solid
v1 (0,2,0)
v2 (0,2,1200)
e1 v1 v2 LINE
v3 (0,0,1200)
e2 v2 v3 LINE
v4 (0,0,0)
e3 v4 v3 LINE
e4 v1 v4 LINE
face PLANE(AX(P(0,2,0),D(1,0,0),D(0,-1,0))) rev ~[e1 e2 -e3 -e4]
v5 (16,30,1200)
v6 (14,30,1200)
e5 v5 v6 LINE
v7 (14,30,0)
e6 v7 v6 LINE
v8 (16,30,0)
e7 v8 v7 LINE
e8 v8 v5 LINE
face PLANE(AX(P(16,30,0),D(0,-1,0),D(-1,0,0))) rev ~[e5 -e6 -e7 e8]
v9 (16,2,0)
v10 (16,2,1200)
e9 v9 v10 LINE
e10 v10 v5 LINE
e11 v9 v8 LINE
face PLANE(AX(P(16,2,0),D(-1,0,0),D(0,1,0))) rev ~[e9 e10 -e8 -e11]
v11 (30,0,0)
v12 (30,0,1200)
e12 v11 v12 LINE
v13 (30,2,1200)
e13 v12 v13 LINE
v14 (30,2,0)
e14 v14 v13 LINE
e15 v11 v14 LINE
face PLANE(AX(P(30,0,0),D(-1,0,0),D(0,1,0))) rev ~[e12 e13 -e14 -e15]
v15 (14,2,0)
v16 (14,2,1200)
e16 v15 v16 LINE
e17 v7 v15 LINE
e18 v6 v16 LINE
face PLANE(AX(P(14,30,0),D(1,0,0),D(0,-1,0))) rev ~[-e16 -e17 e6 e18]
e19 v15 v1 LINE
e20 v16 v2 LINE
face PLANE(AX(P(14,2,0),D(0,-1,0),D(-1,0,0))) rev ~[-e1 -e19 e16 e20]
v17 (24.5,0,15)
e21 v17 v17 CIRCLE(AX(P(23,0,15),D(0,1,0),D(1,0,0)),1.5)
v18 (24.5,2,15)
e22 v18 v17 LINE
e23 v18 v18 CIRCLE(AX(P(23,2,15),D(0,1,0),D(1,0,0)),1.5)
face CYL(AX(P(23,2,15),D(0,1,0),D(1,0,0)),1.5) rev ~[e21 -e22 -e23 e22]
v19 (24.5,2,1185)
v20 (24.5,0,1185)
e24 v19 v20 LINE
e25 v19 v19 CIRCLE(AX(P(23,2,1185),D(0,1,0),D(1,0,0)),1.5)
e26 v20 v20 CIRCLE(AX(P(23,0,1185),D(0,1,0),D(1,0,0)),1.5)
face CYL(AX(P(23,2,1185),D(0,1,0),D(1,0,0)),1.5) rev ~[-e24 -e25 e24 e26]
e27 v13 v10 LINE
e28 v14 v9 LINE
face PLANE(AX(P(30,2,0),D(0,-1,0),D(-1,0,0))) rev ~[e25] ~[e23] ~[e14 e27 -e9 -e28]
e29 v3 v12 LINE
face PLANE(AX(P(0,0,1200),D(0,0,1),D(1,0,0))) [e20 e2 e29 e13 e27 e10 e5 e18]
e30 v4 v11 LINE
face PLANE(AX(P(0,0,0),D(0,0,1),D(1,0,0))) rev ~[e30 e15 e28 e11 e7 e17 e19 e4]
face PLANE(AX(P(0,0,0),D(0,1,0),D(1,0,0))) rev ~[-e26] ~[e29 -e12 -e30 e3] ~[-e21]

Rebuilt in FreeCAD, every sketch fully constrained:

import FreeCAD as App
import Part
import Sketcher
Q = App.Units.Quantity

doc = App.newDocument("Part")
params = doc.addObject("Spreadsheet::Sheet", "Params")
for row, (alias, value) in enumerate([
    ("sketch1_width", "30 mm"),
    ("sketch1_width2", "14 mm"),
    ("sketch1_height", "28 mm"),
    ("pad1_length", "1200 mm"),
    ("sketch2_diameter", "3 mm"),
    ("pocket1_length", "2 mm"),
], start=1):
    params.set(f"A{row}", alias)
    params.set(f"B{row}", "=" + value)
    params.setAlias(f"B{row}", alias)

body = doc.addObject("PartDesign::Body", "Body")

sketch1 = body.newObject("Sketcher::SketchObject", "Sketch")
sketch1.AttachmentSupport = (doc.getObject("XY_Plane"), [""])
sketch1.MapMode = "FlatFace"
sketch1.addGeometry([
    Part.LineSegment(App.Vector(0, 2, 0), App.Vector(0, 0, 0)),
    Part.LineSegment(App.Vector(0, 0, 0), App.Vector(30, 0, 0)),
    Part.LineSegment(App.Vector(30, 0, 0), App.Vector(30, 2, 0)),
    Part.LineSegment(App.Vector(30, 2, 0), App.Vector(16, 2, 0)),
    Part.LineSegment(App.Vector(16, 2, 0), App.Vector(16, 30, 0)),
    Part.LineSegment(App.Vector(16, 30, 0), App.Vector(14, 30, 0)),
    Part.LineSegment(App.Vector(14, 30, 0), App.Vector(14, 2, 0)),
    Part.LineSegment(App.Vector(14, 2, 0), App.Vector(0, 2, 0)),
], False)
sketch1.addConstraint([
    Sketcher.Constraint("Coincident", 0, 2, 1, 1),
    Sketcher.Constraint("Coincident", 1, 2, 2, 1),
    Sketcher.Constraint("Coincident", 2, 2, 3, 1),
    Sketcher.Constraint("Coincident", 3, 2, 4, 1),
    Sketcher.Constraint("Coincident", 4, 2, 5, 1),
    Sketcher.Constraint("Coincident", 5, 2, 6, 1),
    Sketcher.Constraint("Coincident", 6, 2, 7, 1),
    Sketcher.Constraint("Coincident", 7, 2, 0, 1),
    Sketcher.Constraint("Vertical", 0),
    Sketcher.Constraint("Horizontal", 1),
    Sketcher.Constraint("Vertical", 2),
    Sketcher.Constraint("Horizontal", 3),
    Sketcher.Constraint("Vertical", 4),
    Sketcher.Constraint("Horizontal", 5),
    Sketcher.Constraint("Vertical", 6),
    Sketcher.Constraint("Horizontal", 7),
    Sketcher.Constraint("Coincident", 0, 2, -1, 1),
    Sketcher.Constraint("Horizontal", 3, 2, 6, 2),
    Sketcher.Constraint("Equal", 3, 7),
    Sketcher.Constraint("Equal", 5, 0),
    Sketcher.Constraint("DistanceX", 1, 1, 1, 2, Q("30 mm")),
    Sketcher.Constraint("DistanceX", 3, 2, 3, 1, Q("14 mm")),
    Sketcher.Constraint("DistanceY", 4, 1, 4, 2, Q("28 mm")),
])
sketch1.setExpression("Constraints[20]", "Params.sketch1_width")
sketch1.setExpression("Constraints[21]", "Params.sketch1_width2")
sketch1.setExpression("Constraints[22]", "Params.sketch1_height")
pad1 = body.newObject("PartDesign::Pad", "Pad")
pad1.Profile = sketch1
pad1.setExpression("Length", "Params.pad1_length")

sketch2 = body.newObject("Sketcher::SketchObject", "Sketch001")
sketch2.AttachmentSupport = (doc.getObject("XZ_Plane"), [""])
sketch2.MapMode = "FlatFace"
sketch2.AttachmentOffset = App.Placement(App.Vector(0, 0, -2), App.Rotation())
sketch2.addGeometry([
    Part.Circle(App.Vector(23, 1185, 0), App.Vector(0, 0, 1), 1.5),
    Part.Circle(App.Vector(23, 15, 0), App.Vector(0, 0, 1), 1.5),
], False)
sketch2.addConstraint([
    Sketcher.Constraint("Equal", 0, 1),
    Sketcher.Constraint("Vertical", 0, 3, 1, 3),
    Sketcher.Constraint("Diameter", 0, Q("3 mm")),
    Sketcher.Constraint("DistanceY", -1, 1, 1, 3, Q("15 mm")),
    Sketcher.Constraint("DistanceX", -1, 1, 0, 3, Q("23 mm")),
    Sketcher.Constraint("DistanceY", -1, 1, 0, 3, Q("1185 mm")),
])
sketch2.setExpression("Constraints[2]", "Params.sketch2_diameter")
pocket1 = body.newObject("PartDesign::Pocket", "Pocket")
pocket1.Profile = sketch2
pocket1.setExpression("Length", "Params.pocket1_length")
pocket1.Reversed = True

doc.recompute()
